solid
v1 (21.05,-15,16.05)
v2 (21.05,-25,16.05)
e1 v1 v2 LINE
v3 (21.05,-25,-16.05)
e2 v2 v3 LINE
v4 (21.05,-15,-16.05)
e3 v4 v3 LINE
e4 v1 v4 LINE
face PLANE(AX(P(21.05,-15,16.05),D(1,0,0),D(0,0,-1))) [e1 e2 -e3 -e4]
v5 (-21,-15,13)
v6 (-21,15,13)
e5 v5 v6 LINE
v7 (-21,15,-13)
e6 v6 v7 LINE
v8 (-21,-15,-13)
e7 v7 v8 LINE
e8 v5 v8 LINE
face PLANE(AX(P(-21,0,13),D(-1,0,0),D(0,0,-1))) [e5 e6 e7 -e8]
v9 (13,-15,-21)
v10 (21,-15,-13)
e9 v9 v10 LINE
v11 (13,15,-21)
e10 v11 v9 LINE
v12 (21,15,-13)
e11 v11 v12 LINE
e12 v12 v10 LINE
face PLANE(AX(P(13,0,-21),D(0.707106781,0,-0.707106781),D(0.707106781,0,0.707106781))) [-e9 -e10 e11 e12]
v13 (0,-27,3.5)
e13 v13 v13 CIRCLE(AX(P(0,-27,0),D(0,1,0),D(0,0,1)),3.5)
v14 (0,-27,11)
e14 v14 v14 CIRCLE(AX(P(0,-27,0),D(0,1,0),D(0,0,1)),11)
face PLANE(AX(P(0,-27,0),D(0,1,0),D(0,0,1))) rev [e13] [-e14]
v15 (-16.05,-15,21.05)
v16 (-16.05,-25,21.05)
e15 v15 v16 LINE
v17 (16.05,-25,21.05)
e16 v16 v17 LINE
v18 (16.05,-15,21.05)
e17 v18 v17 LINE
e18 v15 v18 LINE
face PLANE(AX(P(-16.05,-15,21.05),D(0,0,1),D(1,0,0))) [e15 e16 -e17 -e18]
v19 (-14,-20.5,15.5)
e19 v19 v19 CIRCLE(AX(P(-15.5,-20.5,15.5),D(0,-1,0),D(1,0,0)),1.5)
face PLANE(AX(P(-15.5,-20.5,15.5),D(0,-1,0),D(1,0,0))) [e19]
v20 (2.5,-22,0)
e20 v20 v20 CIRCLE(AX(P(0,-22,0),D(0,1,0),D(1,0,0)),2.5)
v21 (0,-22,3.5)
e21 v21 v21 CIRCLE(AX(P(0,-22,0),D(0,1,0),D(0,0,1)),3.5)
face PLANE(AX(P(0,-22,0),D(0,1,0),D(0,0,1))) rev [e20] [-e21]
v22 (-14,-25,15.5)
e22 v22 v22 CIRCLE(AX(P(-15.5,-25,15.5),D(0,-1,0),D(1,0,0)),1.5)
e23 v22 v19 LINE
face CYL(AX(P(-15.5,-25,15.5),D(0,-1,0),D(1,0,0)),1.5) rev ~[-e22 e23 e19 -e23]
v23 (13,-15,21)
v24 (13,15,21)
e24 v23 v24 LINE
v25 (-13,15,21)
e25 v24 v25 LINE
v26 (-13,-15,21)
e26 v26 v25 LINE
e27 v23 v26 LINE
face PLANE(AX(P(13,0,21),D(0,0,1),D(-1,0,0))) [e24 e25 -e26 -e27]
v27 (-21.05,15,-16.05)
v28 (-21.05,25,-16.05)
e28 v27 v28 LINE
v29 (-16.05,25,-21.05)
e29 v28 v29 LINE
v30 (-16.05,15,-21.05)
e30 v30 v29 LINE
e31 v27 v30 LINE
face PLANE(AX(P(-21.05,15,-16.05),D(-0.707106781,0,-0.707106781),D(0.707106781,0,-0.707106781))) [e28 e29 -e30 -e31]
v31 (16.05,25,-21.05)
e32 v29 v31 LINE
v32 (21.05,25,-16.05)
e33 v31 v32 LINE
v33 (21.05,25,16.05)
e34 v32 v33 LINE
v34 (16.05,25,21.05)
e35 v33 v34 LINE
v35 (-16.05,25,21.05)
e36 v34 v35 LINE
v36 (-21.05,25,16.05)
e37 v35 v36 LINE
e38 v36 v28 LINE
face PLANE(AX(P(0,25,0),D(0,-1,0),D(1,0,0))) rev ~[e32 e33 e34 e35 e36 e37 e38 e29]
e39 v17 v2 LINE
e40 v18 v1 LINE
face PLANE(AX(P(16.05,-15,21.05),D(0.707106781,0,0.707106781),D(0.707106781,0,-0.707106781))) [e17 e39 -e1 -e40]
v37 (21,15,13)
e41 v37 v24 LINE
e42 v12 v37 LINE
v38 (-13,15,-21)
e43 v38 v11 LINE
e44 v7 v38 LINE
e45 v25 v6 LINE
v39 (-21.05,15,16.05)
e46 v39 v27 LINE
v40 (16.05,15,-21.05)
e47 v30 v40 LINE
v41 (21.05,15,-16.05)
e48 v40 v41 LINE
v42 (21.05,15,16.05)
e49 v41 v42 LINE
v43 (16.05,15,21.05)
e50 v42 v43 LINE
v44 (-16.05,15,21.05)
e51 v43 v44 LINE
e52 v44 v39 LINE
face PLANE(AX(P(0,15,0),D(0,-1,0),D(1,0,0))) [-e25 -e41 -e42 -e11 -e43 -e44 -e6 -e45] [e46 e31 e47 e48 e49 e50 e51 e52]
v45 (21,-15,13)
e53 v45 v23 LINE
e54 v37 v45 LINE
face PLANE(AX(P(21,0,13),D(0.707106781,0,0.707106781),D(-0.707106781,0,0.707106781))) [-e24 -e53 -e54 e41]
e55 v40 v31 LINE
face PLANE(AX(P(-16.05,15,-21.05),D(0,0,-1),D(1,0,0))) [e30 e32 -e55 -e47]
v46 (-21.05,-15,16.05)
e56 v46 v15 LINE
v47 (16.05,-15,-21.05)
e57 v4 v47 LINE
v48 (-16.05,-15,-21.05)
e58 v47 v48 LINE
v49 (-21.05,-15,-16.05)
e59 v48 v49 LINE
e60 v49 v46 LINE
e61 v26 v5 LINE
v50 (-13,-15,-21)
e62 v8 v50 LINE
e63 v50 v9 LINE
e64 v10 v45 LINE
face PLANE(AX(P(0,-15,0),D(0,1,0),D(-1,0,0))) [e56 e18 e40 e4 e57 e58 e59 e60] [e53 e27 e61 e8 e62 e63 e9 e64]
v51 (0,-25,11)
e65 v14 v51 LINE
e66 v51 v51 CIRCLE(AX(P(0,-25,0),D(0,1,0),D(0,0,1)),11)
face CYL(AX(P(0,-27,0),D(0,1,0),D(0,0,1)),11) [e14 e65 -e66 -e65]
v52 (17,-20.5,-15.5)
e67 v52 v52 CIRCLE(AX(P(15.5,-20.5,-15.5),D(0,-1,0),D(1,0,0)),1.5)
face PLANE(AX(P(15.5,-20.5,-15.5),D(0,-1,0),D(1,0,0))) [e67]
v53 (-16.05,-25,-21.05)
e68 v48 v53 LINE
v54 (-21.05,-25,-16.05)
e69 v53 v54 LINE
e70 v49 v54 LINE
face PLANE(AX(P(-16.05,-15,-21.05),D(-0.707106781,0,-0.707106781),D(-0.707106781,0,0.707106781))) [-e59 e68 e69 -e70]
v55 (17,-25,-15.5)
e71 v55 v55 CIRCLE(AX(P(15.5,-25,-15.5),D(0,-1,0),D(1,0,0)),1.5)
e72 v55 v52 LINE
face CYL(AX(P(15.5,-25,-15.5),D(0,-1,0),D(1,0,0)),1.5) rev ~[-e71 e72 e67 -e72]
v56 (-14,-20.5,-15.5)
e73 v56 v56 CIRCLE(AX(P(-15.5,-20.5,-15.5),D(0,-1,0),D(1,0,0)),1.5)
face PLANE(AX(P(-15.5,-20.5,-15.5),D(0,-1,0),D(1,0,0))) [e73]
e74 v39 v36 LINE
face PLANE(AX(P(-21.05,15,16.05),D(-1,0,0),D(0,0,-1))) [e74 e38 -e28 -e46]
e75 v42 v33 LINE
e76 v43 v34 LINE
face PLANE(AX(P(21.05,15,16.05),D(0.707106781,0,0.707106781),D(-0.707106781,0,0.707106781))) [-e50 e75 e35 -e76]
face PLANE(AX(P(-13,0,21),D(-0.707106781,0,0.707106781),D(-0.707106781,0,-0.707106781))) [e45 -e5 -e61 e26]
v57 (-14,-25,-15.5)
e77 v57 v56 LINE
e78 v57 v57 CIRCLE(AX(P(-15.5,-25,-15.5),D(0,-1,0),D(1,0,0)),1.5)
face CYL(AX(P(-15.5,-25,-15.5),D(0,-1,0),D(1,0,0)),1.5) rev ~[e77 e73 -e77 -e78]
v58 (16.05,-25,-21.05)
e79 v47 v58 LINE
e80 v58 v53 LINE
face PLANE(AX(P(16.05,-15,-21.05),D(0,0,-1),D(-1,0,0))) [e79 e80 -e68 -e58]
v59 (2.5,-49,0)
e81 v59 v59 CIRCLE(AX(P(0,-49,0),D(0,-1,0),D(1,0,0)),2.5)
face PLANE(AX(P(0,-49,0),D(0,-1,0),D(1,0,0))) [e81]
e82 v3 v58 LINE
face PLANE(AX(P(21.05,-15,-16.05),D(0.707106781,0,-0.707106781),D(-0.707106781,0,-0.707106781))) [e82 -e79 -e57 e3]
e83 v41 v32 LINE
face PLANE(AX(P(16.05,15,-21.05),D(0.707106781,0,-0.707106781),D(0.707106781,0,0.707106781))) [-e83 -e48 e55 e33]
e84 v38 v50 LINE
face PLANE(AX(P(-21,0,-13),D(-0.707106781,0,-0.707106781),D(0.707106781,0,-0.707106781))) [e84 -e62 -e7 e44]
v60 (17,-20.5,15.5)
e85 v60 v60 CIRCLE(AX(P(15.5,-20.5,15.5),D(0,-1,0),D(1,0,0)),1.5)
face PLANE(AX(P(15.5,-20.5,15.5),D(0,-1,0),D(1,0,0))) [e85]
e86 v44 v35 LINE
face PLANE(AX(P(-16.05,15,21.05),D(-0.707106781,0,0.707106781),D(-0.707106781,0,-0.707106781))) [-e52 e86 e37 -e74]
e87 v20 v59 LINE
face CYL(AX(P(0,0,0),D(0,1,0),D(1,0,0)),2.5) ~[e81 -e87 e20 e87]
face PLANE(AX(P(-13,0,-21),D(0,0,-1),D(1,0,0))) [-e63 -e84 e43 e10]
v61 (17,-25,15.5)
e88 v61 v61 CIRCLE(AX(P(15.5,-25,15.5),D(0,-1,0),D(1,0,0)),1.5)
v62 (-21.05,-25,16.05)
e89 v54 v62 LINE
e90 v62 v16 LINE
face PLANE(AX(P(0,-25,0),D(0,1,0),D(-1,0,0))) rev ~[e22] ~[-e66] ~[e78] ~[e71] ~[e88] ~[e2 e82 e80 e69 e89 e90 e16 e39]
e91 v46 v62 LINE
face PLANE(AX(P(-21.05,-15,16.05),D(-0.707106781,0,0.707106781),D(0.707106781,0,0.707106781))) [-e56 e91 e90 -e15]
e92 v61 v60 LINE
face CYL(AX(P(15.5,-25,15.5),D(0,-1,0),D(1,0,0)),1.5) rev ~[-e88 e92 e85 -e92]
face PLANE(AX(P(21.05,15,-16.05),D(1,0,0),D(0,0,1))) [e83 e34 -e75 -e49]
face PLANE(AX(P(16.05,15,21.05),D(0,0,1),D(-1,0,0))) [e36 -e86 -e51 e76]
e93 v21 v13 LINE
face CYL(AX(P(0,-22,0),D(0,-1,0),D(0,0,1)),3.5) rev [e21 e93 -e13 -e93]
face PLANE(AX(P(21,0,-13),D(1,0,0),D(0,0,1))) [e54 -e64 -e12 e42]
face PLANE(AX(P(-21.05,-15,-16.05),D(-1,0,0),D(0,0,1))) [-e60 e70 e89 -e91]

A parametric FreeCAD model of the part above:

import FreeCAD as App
import Part
import Sketcher
Q = App.Units.Quantity

doc = App.newDocument("Part")
params = doc.addObject("Spreadsheet::Sheet", "Params")
for row, (alias, value) in enumerate([
    ("sketch1_diameter", "5 mm"),
    ("pad1_length", "49 mm"),
    ("sketch2_diameter", "22 mm"),
    ("sketch2_width", "32.1 mm"),
    ("pad2_length", "10 mm"),
    ("sketch3_diameter", "3 mm"),
    ("pocket1_length", "4.5 mm"),
    ("sketch4_width", "24 mm"),
    ("sketch4_width2", "3 mm"),
    ("sketch4_width3", "5 mm"),
    ("sketch4_height", "1 mm"),
    ("sketch4_height2", "12 mm"),
    ("revolution_angle", "360 deg"),
    ("sketch5_width", "26 mm"),
    ("pad3_length", "30 mm"),
    ("sketch6_width", "32.1 mm"),
    ("pad4_length", "10 mm"),
], start=1):
    params.set(f"A{row}", alias)
    params.set(f"B{row}", "=" + value)
    params.setAlias(f"B{row}", alias)

body = doc.addObject("PartDesign::Body", "Body")

# Sketch on XZ plane
sketch1 = body.newObject("Sketcher::SketchObject", "Sketch")
sketch1.AttachmentSupport = (doc.getObject("XZ_Plane"), [""])
sketch1.MapMode = "FlatFace"
sketch1.addGeometry(Part.Circle(App.Vector(0, 0, 0), App.Vector(0, 0, 1), 2.5), False)
sketch1.addConstraint(Sketcher.Constraint("Coincident", 0, 3, -1, 1))
sketch1.addConstraint(Sketcher.Constraint("Diameter", 0, Q("5 mm")))
sketch1.setExpression("Constraints[1]", "Params.sketch1_diameter")
pad1 = body.newObject("PartDesign::Pad", "Pad")
pad1.Profile = sketch1
pad1.setExpression("Length", "Params.pad1_length")
body2 = doc.addObject("PartDesign::Body", "Body001")

# Sketch on XZ plane
sketch2 = body2.newObject("Sketcher::SketchObject", "Sketch001")
sketch2.AttachmentSupport = (doc.getObject("XZ_Plane001"), [""])
sketch2.MapMode = "FlatFace"
sketch2.AttachmentOffset = App.Placement(App.Vector(0, 0, 15), App.Rotation())
sketch2.addGeometry(Part.LineSegment(App.Vector(-21, 16, 0), App.Vector(-21, -16, 0)), False)
sketch2.addGeometry(Part.LineSegment(App.Vector(-21, -16, 0), App.Vector(-16, -21, 0)), False)
sketch2.addGeometry(Part.LineSegment(App.Vector(-16, -21, 0), App.Vector(16, -21, 0)), False)
sketch2.addGeometry(Part.LineSegment(App.Vector(16, -21, 0), App.Vector(21, -16, 0)), False)
sketch2.addGeometry(Part.LineSegment(App.Vector(21, -16, 0), App.Vector(21, 16, 0)), False)
sketch2.addGeometry(Part.LineSegment(App.Vector(21, 16, 0), App.Vector(16, 21, 0)), False)
sketch2.addGeometry(Part.LineSegment(App.Vector(16, 21, 0), App.Vector(-16, 21, 0)), False)
sketch2.addGeometry(Part.LineSegment(App.Vector(-16, 21, 0), App.Vector(-21, 16, 0)), False)
sketch2.addGeometry(Part.Circle(App.Vector(0, 0, 0), App.Vector(0, 0, 1), 11), False)
sketch2.addConstraint(Sketcher.Constraint("Coincident", 0, 2, 1, 1))
sketch2.addConstraint(Sketcher.Constraint("Coincident", 1, 2, 2, 1))
sketch2.addConstraint(Sketcher.Constraint("Coincident", 2, 2, 3, 1))
sketch2.addConstraint(Sketcher.Constraint("Coincident", 3, 2, 4, 1))
sketch2.addConstraint(Sketcher.Constraint("Coincident", 4, 2, 5, 1))
sketch2.addConstraint(Sketcher.Constraint("Coincident", 5, 2, 6, 1))
sketch2.addConstraint(Sketcher.Constraint("Coincident", 6, 2, 7, 1))
sketch2.addConstraint(Sketcher.Constraint("Coincident", 7, 2, 0, 1))
sketch2.addConstraint(Sketcher.Constraint("Vertical", 0))
sketch2.addConstraint(Sketcher.Constraint("Horizontal", 2))
sketch2.addConstraint(Sketcher.Constraint("Vertical", 4))
sketch2.addConstraint(Sketcher.Constraint("Horizontal", 6))
sketch2.addConstraint(Sketcher.Constraint("Coincident", 8, 3, -1, 1))
sketch2.addConstraint(Sketcher.Constraint("Symmetric", 0, 2, 4, 2, -1, 1))
sketch2.addConstraint(Sketcher.Constraint("Symmetric", 1, 2, 5, 2, -1, 1))
sketch2.addConstraint(Sketcher.Constraint("Perpendicular", 1, 3))
sketch2.addConstraint(Sketcher.Constraint("Perpendicular", 5, 7))
sketch2.addConstraint(Sketcher.Constraint("Horizontal", 0, 2, 3, 2))
sketch2.addConstraint(Sketcher.Constraint("Horizontal", 4, 2, 7, 2))
sketch2.addConstraint(Sketcher.Constraint("Vertical", 2, 2, 5, 2))
sketch2.addConstraint(Sketcher.Constraint("Equal", 6, 0))
sketch2.addConstraint(Sketcher.Constraint("Diameter", 8, Q("22 mm")))
sketch2.addConstraint(Sketcher.Constraint("DistanceX", 2, 1, 2, 2, Q("32.1 mm")))
sketch2.addConstraint(Sketcher.Constraint("DistanceX", 0, 2, 1, 2, Q("5 mm")))
sketch2.setExpression("Constraints[21]", "Params.sketch2_diameter")
sketch2.setExpression("Constraints[22]", "Params.sketch2_width")
pad2 = body2.newObject("PartDesign::Pad", "Pad001")
pad2.Profile = sketch2
pad2.setExpression("Length", "Params.pad2_length")

# Sketch on XZ plane
sketch3 = body2.newObject("Sketcher::SketchObject", "Sketch002")
sketch3.AttachmentSupport = (doc.getObject("XZ_Plane001"), [""])
sketch3.MapMode = "FlatFace"
sketch3.AttachmentOffset = App.Placement(App.Vector(0, 0, 25), App.Rotation())
sketch3.addGeometry(Part.Circle(App.Vector(-15.5, 15.5, 0), App.Vector(0, 0, 1), 1.5), False)
sketch3.addGeometry(Part.Circle(App.Vector(15.5, 15.5, 0), App.Vector(0, 0, 1), 1.5), False)
sketch3.addGeometry(Part.Circle(App.Vector(-15.5, -15.5, 0), App.Vector(0, 0, 1), 1.5), False)
sketch3.addGeometry(Part.Circle(App.Vector(15.5, -15.5, 0), App.Vector(0, 0, 1), 1.5), False)
sketch3.addConstraint(Sketcher.Constraint("Equal", 0, 1))
sketch3.addConstraint(Sketcher.Constraint("Equal", 1, 2))
sketch3.addConstraint(Sketcher.Constraint("Equal", 2, 3))
sketch3.addConstraint(Sketcher.Constraint("Symmetric", 1, 3, 2, 3, -1, 1))
sketch3.addConstraint(Sketcher.Constraint("Symmetric", 0, 3, 3, 3, -1, 1))
sketch3.addConstraint(Sketcher.Constraint("Symmetric", 0, 3, 1, 3, -2))
sketch3.addConstraint(Sketcher.Constraint("Diameter", 0, Q("3 mm")))
sketch3.addConstraint(Sketcher.Constraint("DistanceX", 0, 3, 1, 3, Q("31 mm")))
sketch3.addConstraint(Sketcher.Constraint("DistanceY", 2, 3, 0, 3, Q("31 mm")))
sketch3.setExpression("Constraints[6]", "Params.sketch3_diameter")
pocket1 = body2.newObject("PartDesign::Pocket", "Pocket")
pocket1.Profile = sketch3
pocket1.setExpression("Length", "Params.pocket1_length")
body3 = doc.addObject("PartDesign::Body", "Body002")

# Sketch on YZ plane
sketch4 = body3.newObject("Sketcher::SketchObject", "Sketch003")
sketch4.AttachmentSupport = (doc.getObject("YZ_Plane002"), [""])
sketch4.MapMode = "FlatFace"
sketch4.addGeometry(Part.LineSegment(App.Vector(0, 12, 0), App.Vector(-24, 12, 0)), False)
sketch4.addGeometry(Part.LineSegment(App.Vector(-24, 12, 0), App.Vector(-24, 11, 0)), False)
sketch4.addGeometry(Part.LineSegment(App.Vector(-24, 11, 0), App.Vector(-27, 11, 0)), False)
sketch4.addGeometry(Part.LineSegment(App.Vector(-27, 11, 0), App.Vector(-27, 3.5, 0)), False)
sketch4.addGeometry(Part.LineSegment(App.Vector(-27, 3.5, 0), App.Vector(-22, 3.5, 0)), False)
sketch4.addGeometry(Part.LineSegment(App.Vector(-22, 3.5, 0), App.Vector(-22, 0, 0)), False)
sketch4.addGeometry(Part.LineSegment(App.Vector(-22, 0, 0), App.Vector(0, 0, 0)), False)
sketch4.addGeometry(Part.LineSegment(App.Vector(0, 0, 0), App.Vector(0, 12, 0)), False)
sketch4.addConstraint(Sketcher.Constraint("Coincident", 0, 2, 1, 1))
sketch4.addConstraint(Sketcher.Constraint("Coincident", 1, 2, 2, 1))
sketch4.addConstraint(Sketcher.Constraint("Coincident", 2, 2, 3, 1))
sketch4.addConstraint(Sketcher.Constraint("Coincident", 3, 2, 4, 1))
sketch4.addConstraint(Sketcher.Constraint("Coincident", 4, 2, 5, 1))
sketch4.addConstraint(Sketcher.Constraint("Coincident", 5, 2, 6, 1))
sketch4.addConstraint(Sketcher.Constraint("Coincident", 6, 2, 7, 1))
sketch4.addConstraint(Sketcher.Constraint("Coincident", 7, 2, 0, 1))
sketch4.addConstraint(Sketcher.Constraint("Horizontal", 0))
sketch4.addConstraint(Sketcher.Constraint("Vertical", 1))
sketch4.addConstraint(Sketcher.Constraint("Horizontal", 2))
sketch4.addConstraint(Sketcher.Constraint("Vertical", 3))
sketch4.addConstraint(Sketcher.Constraint("Horizontal", 4))
sketch4.addConstraint(Sketcher.Constraint("Vertical", 5))
sketch4.addConstraint(Sketcher.Constraint("Horizontal", 6))
sketch4.addConstraint(Sketcher.Constraint("Vertical", 7))
sketch4.addConstraint(Sketcher.Constraint("Coincident", 6, 2, -1, 1))
sketch4.addConstraint(Sketcher.Constraint("DistanceX", 0, 2, 0, 1, Q("24 mm")))
sketch4.addConstraint(Sketcher.Constraint("DistanceX", 2, 2, 2, 1, Q("3 mm")))
sketch4.addConstraint(Sketcher.Constraint("DistanceX", 4, 1, 4, 2, Q("5 mm")))
sketch4.addConstraint(Sketcher.Constraint("DistanceY", 1, 2, 1, 1, Q("1 mm")))
sketch4.addConstraint(Sketcher.Constraint("DistanceY", 7, 1, 7, 2, Q("12 mm")))
sketch4.addConstraint(Sketcher.Constraint("DistanceY", 3, 2, 3, 1, Q("7.5 mm")))
sketch4.setExpression("Constraints[17]", "Params.sketch4_width")
sketch4.setExpression("Constraints[18]", "Params.sketch4_width2")
sketch4.setExpression("Constraints[19]", "Params.sketch4_width3")
sketch4.setExpression("Constraints[20]", "Params.sketch4_height")
sketch4.setExpression("Constraints[21]", "Params.sketch4_height2")
revolution = body3.newObject("PartDesign::Revolution", "Revolution")
revolution.Profile = sketch4
revolution.ReferenceAxis = (sketch4, ["H_Axis"])
revolution.setExpression("Angle", "Params.revolution_angle")
body4 = doc.addObject("PartDesign::Body", "Body003")

# Sketch on XZ plane
sketch5 = body4.newObject("Sketcher::SketchObject", "Sketch004")
sketch5.AttachmentSupport = (doc.getObject("XZ_Plane003"), [""])
sketch5.MapMode = "FlatFace"
sketch5.addGeometry(Part.LineSegment(App.Vector(-21, 13, 0), App.Vector(-21, -13, 0)), False)
sketch5.addGeometry(Part.LineSegment(App.Vector(-21, -13, 0), App.Vector(-13, -21, 0)), False)
sketch5.addGeometry(Part.LineSegment(App.Vector(-13, -21, 0), App.Vector(13, -21, 0)), False)
sketch5.addGeometry(Part.LineSegment(App.Vector(13, -21, 0), App.Vector(21, -13, 0)), False)
sketch5.addGeometry(Part.LineSegment(App.Vector(21, -13, 0), App.Vector(21, 13, 0)), False)
sketch5.addGeometry(Part.LineSegment(App.Vector(21, 13, 0), App.Vector(13, 21, 0)), False)
sketch5.addGeometry(Part.LineSegment(App.Vector(13, 21, 0), App.Vector(-13, 21, 0)), False)
sketch5.addGeometry(Part.LineSegment(App.Vector(-13, 21, 0), App.Vector(-21, 13, 0)), False)
sketch5.addConstraint(Sketcher.Constraint("Coincident", 0, 2, 1, 1))
sketch5.addConstraint(Sketcher.Constraint("Coincident", 1, 2, 2, 1))
sketch5.addConstraint(Sketcher.Constraint("Coincident", 2, 2, 3, 1))
sketch5.addConstraint(Sketcher.Constraint("Coincident", 3, 2, 4, 1))
sketch5.addConstraint(Sketcher.Constraint("Coincident", 4, 2, 5, 1))
sketch5.addConstraint(Sketcher.Constraint("Coincident", 5, 2, 6, 1))
sketch5.addConstraint(Sketcher.Constraint("Coincident", 6, 2, 7, 1))
sketch5.addConstraint(Sketcher.Constraint("Coincident", 7, 2, 0, 1))
sketch5.addConstraint(Sketcher.Constraint("Vertical", 0))
sketch5.addConstraint(Sketcher.Constraint("Horizontal", 2))
sketch5.addConstraint(Sketcher.Constraint("Vertical", 4))
sketch5.addConstraint(Sketcher.Constraint("Horizontal", 6))
sketch5.addConstraint(Sketcher.Constraint("Symmetric", 0, 2, 4, 2, -1, 1))
sketch5.addConstraint(Sketcher.Constraint("Symmetric", 1, 2, 5, 2, -1, 1))
sketch5.addConstraint(Sketcher.Constraint("Perpendicular", 1, 3))
sketch5.addConstraint(Sketcher.Constraint("Perpendicular", 5, 7))
sketch5.addConstraint(Sketcher.Constraint("Horizontal", 0, 2, 3, 2))
sketch5.addConstraint(Sketcher.Constraint("Horizontal", 4, 2, 7, 2))
sketch5.addConstraint(Sketcher.Constraint("Vertical", 2, 2, 5, 2))
sketch5.addConstraint(Sketcher.Constraint("Equal", 6, 0))
sketch5.addConstraint(Sketcher.Constraint("DistanceX", 2, 1, 2, 2, Q("26 mm")))
sketch5.addConstraint(Sketcher.Constraint("DistanceX", 0, 2, -1, 1, Q("21 mm")))
sketch5.setExpression("Constraints[20]", "Params.sketch5_width")
pad3 = body4.newObject("PartDesign::Pad", "Pad002")
pad3.Profile = sketch5
pad3.setExpression("Length", "Params.pad3_length")
pad3.Midplane = True
doc.recompute()

boolean = body4.newObject("PartDesign::Boolean", "Boolean")
boolean.Type = "Fuse"
boolean.addObjects([body3])
doc.recompute()

boolean2 = body4.newObject("PartDesign::Boolean", "Boolean001")
boolean2.Type = "Fuse"
boolean2.addObjects([body2])
body5 = doc.addObject("PartDesign::Body", "Body004")

# Sketch on XZ plane
sketch6 = body5.newObject("Sketcher::SketchObject", "Sketch005")
sketch6.AttachmentSupport = (doc.getObject("XZ_Plane004"), [""])
sketch6.MapMode = "FlatFace"
sketch6.AttachmentOffset = App.Placement(App.Vector(0, 0, -15), App.Rotation())
sketch6.addGeometry(Part.LineSegment(App.Vector(21, 16, 0), App.Vector(21, -16, 0)), False)
sketch6.addGeometry(Part.LineSegment(App.Vector(21, -16, 0), App.Vector(16, -21, 0)), False)
sketch6.addGeometry(Part.LineSegment(App.Vector(16, -21, 0), App.Vector(-16, -21, 0)), False)
sketch6.addGeometry(Part.LineSegment(App.Vector(-16, -21, 0), App.Vector(-21, -16, 0)), False)
sketch6.addGeometry(Part.LineSegment(App.Vector(-21, -16, 0), App.Vector(-21, 16, 0)), False)
sketch6.addGeometry(Part.LineSegment(App.Vector(-21, 16, 0), App.Vector(-16, 21, 0)), False)
sketch6.addGeometry(Part.LineSegment(App.Vector(-16, 21, 0), App.Vector(16, 21, 0)), False)
sketch6.addGeometry(Part.LineSegment(App.Vector(16, 21, 0), App.Vector(21, 16, 0)), False)
sketch6.addConstraint(Sketcher.Constraint("Coincident", 0, 2, 1, 1))
sketch6.addConstraint(Sketcher.Constraint("Coincident", 1, 2, 2, 1))
sketch6.addConstraint(Sketcher.Constraint("Coincident", 2, 2, 3, 1))
sketch6.addConstraint(Sketcher.Constraint("Coincident", 3, 2, 4, 1))
sketch6.addConstraint(Sketcher.Constraint("Coincident", 4, 2, 5, 1))
sketch6.addConstraint(Sketcher.Constraint("Coincident", 5, 2, 6, 1))
sketch6.addConstraint(Sketcher.Constraint("Coincident", 6, 2, 7, 1))
sketch6.addConstraint(Sketcher.Constraint("Coincident", 7, 2, 0, 1))
sketch6.addConstraint(Sketcher.Constraint("Vertical", 0))
sketch6.addConstraint(Sketcher.Constraint("Horizontal", 2))
sketch6.addConstraint(Sketcher.Constraint("Vertical", 4))
sketch6.addConstraint(Sketcher.Constraint("Horizontal", 6))
sketch6.addConstraint(Sketcher.Constraint("Symmetric", 0, 2, 4, 2, -1, 1))
sketch6.addConstraint(Sketcher.Constraint("Symmetric", 1, 2, 5, 2, -1, 1))
sketch6.addConstraint(Sketcher.Constraint("Perpendicular", 1, 3))
sketch6.addConstraint(Sketcher.Constraint("Perpendicular", 5, 7))
sketch6.addConstraint(Sketcher.Constraint("Horizontal", 0, 2, 3, 2))
sketch6.addConstraint(Sketcher.Constraint("Horizontal", 4, 2, 7, 2))
sketch6.addConstraint(Sketcher.Constraint("Vertical", 2, 2, 5, 2))
sketch6.addConstraint(Sketcher.Constraint("Equal", 6, 0))
sketch6.addConstraint(Sketcher.Constraint("DistanceX", 2, 2, 2, 1, Q("32.1 mm")))
sketch6.addConstraint(Sketcher.Constraint("DistanceX", 1, 2, 0, 2, Q("5 mm")))
sketch6.setExpression("Constraints[20]", "Params.sketch6_width")
pad4 = body5.newObject("PartDesign::Pad", "Pad003")
pad4.Profile = sketch6
pad4.setExpression("Length", "Params.pad4_length")
pad4.Reversed = True
doc.recompute()

boolean3 = body5.newObject("PartDesign::Boolean", "Boolean002")
boolean3.Type = "Fuse"
boolean3.addObjects([body4])
doc.recompute()

boolean4 = body5.newObject("PartDesign::Boolean", "Boolean003")
boolean4.Type = "Fuse"
boolean4.addObjects([body])

doc.recompute()
